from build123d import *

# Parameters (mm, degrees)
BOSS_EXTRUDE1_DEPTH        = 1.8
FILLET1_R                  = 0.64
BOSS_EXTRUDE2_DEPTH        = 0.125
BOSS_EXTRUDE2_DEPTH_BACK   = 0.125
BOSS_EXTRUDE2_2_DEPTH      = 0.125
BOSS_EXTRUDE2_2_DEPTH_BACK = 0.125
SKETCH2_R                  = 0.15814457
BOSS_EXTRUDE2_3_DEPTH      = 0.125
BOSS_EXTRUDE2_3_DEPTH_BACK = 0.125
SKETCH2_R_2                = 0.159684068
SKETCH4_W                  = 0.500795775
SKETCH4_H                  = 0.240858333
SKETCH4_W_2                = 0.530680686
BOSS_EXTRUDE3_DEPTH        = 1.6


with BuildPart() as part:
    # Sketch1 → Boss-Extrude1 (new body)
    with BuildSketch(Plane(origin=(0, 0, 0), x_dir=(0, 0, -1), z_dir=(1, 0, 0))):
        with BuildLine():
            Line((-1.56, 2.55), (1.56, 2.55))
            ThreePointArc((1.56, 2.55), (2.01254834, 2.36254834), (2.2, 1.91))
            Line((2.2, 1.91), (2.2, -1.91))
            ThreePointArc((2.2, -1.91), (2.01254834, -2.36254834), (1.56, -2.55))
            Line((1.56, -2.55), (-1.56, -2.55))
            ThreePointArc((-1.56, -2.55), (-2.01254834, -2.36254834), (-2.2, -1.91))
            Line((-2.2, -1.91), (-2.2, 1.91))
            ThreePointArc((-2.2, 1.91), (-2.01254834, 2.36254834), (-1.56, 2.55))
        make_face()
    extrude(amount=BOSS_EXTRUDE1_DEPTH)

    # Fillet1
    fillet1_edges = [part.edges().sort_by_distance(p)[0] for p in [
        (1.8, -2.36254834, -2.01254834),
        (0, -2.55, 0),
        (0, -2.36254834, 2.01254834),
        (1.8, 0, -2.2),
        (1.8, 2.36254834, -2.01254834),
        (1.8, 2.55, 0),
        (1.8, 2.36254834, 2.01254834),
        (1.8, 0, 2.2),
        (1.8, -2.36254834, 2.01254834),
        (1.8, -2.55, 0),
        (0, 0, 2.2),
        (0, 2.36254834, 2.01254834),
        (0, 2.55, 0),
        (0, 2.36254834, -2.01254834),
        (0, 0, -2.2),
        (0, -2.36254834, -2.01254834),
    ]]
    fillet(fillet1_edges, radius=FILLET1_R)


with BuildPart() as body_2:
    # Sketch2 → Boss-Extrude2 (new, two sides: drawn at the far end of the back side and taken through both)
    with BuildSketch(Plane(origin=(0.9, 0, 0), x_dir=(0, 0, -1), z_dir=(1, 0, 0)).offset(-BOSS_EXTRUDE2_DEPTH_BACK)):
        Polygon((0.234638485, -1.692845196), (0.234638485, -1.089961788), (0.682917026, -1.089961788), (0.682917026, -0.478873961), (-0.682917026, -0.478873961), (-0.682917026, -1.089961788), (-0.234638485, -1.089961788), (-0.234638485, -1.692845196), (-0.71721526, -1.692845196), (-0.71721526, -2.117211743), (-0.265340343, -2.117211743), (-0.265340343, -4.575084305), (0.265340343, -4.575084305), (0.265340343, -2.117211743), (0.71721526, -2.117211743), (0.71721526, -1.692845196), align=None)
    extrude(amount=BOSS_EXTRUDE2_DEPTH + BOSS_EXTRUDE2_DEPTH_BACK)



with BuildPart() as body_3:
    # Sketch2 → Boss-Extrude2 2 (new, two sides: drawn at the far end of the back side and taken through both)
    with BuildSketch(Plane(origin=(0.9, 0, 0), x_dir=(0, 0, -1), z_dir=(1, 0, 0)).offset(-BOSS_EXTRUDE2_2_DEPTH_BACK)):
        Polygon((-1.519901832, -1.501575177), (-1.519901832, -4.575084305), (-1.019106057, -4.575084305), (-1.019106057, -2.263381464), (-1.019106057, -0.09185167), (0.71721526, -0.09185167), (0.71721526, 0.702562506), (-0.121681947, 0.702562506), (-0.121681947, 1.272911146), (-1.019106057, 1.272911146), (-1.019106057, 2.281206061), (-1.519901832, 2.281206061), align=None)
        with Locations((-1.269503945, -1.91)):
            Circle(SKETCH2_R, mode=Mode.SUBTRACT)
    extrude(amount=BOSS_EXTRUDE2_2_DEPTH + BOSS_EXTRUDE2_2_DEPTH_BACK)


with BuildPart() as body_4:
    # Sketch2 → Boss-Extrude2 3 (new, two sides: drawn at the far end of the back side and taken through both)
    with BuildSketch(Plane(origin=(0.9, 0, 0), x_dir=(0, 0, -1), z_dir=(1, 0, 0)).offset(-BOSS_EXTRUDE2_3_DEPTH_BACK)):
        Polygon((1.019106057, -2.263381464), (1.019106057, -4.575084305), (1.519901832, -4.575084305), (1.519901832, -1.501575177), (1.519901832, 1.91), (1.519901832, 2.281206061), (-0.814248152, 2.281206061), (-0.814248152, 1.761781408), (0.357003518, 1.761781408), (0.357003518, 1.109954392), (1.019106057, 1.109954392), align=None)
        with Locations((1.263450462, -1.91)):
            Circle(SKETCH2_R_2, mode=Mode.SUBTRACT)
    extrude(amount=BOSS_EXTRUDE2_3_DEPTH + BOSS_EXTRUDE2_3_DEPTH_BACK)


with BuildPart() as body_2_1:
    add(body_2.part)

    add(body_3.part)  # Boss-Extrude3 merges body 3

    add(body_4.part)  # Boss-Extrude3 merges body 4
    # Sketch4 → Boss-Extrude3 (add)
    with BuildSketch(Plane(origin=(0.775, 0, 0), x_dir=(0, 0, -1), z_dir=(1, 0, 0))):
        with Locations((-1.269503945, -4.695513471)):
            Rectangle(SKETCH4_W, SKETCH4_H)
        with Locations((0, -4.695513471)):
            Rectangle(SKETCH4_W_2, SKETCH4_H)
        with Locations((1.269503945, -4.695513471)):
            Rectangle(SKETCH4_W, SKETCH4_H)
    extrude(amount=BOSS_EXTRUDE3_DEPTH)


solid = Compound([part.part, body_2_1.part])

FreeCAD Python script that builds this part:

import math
import FreeCAD as App
import Part
import Sketcher

V = App.Vector
Q = App.Units.Quantity


def edges_at(feature, points):
    """Names of the edges that pass closest to the given points."""
    edges = feature.Shape.Edges
    near = lambda p: min(range(len(edges)), key=lambda i: edges[i].distToShape(Part.Vertex(*p))[0])
    return sorted({f"Edge{near(p) + 1}" for p in points})


def add_polygon(sketch, points):
    """Adds a closed chain of lines whose ends are joined by coincident constraints."""
    first, n = sketch.GeometryCount, len(points)
    for a, b in zip(points, points[1:] + points[:1]):
        sketch.addGeometry(Part.LineSegment(App.Vector(*a, 0), App.Vector(*b, 0)), False)
    for i in range(n):
        sketch.addConstraint(Sketcher.Constraint("Coincident", first + i, 2, first + (i + 1) % n, 1))

doc = App.newDocument("Part")
body = doc.addObject("PartDesign::Body", "Body")

# Sketch on YZ plane
sketch1 = doc.addObject("Sketcher::SketchObject", "Sketch")
body.addObject(sketch1)
sketch1.AttachmentSupport = (doc.YZ_Plane, [""])
sketch1.MapMode = "FlatFace"
sketch1.addGeometry([
    Part.LineSegment(V(2.55, -1.56, 0), V(2.55, 1.56, 0)),  # 0
    Part.ArcOfCircle(Part.Circle(V(1.91, 1.56, 0), V(0, 0, 1), 0.64), math.radians(0), math.radians(90)),  # 1
    Part.LineSegment(V(1.91, 2.2, 0), V(-1.91, 2.2, 0)),  # 2
    Part.ArcOfCircle(Part.Circle(V(-1.91, 1.56, 0), V(0, 0, 1), 0.64), math.radians(90), math.radians(180)),  # 3
    Part.LineSegment(V(-2.55, 1.56, 0), V(-2.55, -1.56, 0)),  # 4
    Part.ArcOfCircle(Part.Circle(V(-1.91, -1.56, 0), V(0, 0, 1), 0.64), math.radians(180), math.radians(270)),  # 5
    Part.LineSegment(V(-1.91, -2.2, 0), V(1.91, -2.2, 0)),  # 6
    Part.ArcOfCircle(Part.Circle(V(1.91, -1.56, 0), V(0, 0, 1), 0.64), math.radians(-90), math.radians(0)),  # 7
], False)
sketch1.addConstraint([
    Sketcher.Constraint("Tangent", 0, 2, 1, 1),
    Sketcher.Constraint("Tangent", 1, 2, 2, 1),
    Sketcher.Constraint("Tangent", 2, 2, 3, 1),
    Sketcher.Constraint("Tangent", 3, 2, 4, 1),
    Sketcher.Constraint("Tangent", 4, 2, 5, 1),
    Sketcher.Constraint("Tangent", 5, 2, 6, 1),
    Sketcher.Constraint("Tangent", 6, 2, 7, 1),
    Sketcher.Constraint("Tangent", 7, 2, 0, 1),
    Sketcher.Constraint("Vertical", 0),
    Sketcher.Constraint("Horizontal", 2),
    Sketcher.Constraint("Vertical", 4),
    Sketcher.Constraint("Horizontal", 6),
    Sketcher.Constraint("Equal", 1, 3),
    Sketcher.Constraint("Equal", 3, 5),
    Sketcher.Constraint("Equal", 5, 7),
    Sketcher.Constraint("Symmetric", 1, 3, 5, 3, -1, 1),
    Sketcher.Constraint("Radius", 1, Q("0.64 mm")),
    Sketcher.Constraint("DistanceX", 2, 2, 2, 1, Q("3.82 mm")),
    Sketcher.Constraint("DistanceY", 0, 1, 0, 2, Q("3.12 mm")),
])
pad1 = doc.addObject("PartDesign::Pad", "Pad")
body.addObject(pad1)
pad1.Profile = sketch1
pad1.Length = 1.8
doc.recompute()

fillet = doc.addObject("PartDesign::Fillet", "Fillet")
body.addObject(fillet)
fillet.Base = (pad1, edges_at(pad1, [
    (1.8, -2.363, -2.013),
    (0, -2.55, 0),
    (0, -2.363, 2.013),
    (1.8, 0, -2.2),
    (1.8, 2.363, -2.013),
    (1.8, 2.55, 0),
    (1.8, 2.363, 2.013),
    (1.8, 0, 2.2),
    (1.8, -2.363, 2.013),
    (1.8, -2.55, 0),
    (0, 0, 2.2),
    (0, 2.363, 2.013),
    (0, 2.55, 0),
    (0, 2.363, -2.013),
    (0, 0, -2.2),
    (0, -2.363, -2.013),
]))
fillet.Radius = 0.64
body2 = doc.addObject("PartDesign::Body", "Body001")

# Sketch on YZ plane
sketch2 = doc.addObject("Sketcher::SketchObject", "Sketch001")
body2.addObject(sketch2)
sketch2.AttachmentSupport = (doc.getObject("YZ_Plane001"), [""])
sketch2.MapMode = "FlatFace"
sketch2.AttachmentOffset = App.Placement(V(0, 0, 0.9), App.Rotation())
add_polygon(sketch2, [(-1.692845, -0.234638), (-1.089962, -0.234638), (-1.089962, -0.682917), (-0.478874, -0.682917), (-0.478874, 0.682917), (-1.089962, 0.682917), (-1.089962, 0.234638), (-1.692845, 0.234638), (-1.692845, 0.717215), (-2.117212, 0.717215), (-2.117212, 0.26534), (-4.575084, 0.26534), (-4.575084, -0.26534), (-2.117212, -0.26534), (-2.117212, -0.717215), (-1.692845, -0.717215)])  # lines 0-15
sketch2.addConstraint([
    Sketcher.Constraint("Horizontal", 0),
    Sketcher.Constraint("Vertical", 1),
    Sketcher.Constraint("Horizontal", 2),
    Sketcher.Constraint("Vertical", 3),
    Sketcher.Constraint("Horizontal", 4),
    Sketcher.Constraint("Vertical", 5),
    Sketcher.Constraint("Horizontal", 6),
    Sketcher.Constraint("Vertical", 7),
    Sketcher.Constraint("Horizontal", 8),
    Sketcher.Constraint("Vertical", 9),
    Sketcher.Constraint("Horizontal", 10),
    Sketcher.Constraint("Vertical", 11),
    Sketcher.Constraint("Horizontal", 12),
    Sketcher.Constraint("Vertical", 13),
    Sketcher.Constraint("Horizontal", 14),
    Sketcher.Constraint("Vertical", 15),
    Sketcher.Constraint("Symmetric", 1, 2, 4, 2, -1),
    Sketcher.Constraint("Symmetric", 9, 2, 12, 2, -1),
    Sketcher.Constraint("Symmetric", 7, 2, 14, 2, -1),
    Sketcher.Constraint("Equal", 1, 5),
    Sketcher.Constraint("DistanceY", 1, 2, 1, 1, Q("0.448279 mm")),
    Sketcher.Constraint("DistanceY", 11, 2, 11, 1, Q("0.530681 mm")),
    Sketcher.Constraint("DistanceY", 4, 2, 7, 2, Q("0.034298 mm")),
    Sketcher.Constraint("DistanceY", 6, 2, 9, 2, Q("0.030702 mm")),
    Sketcher.Constraint("DistanceX", 0, 1, 0, 2, Q("0.602883 mm")),
    Sketcher.Constraint("DistanceX", 2, 1, 2, 2, Q("0.611088 mm")),
    Sketcher.Constraint("DistanceX", 8, 2, 8, 1, Q("0.424367 mm")),
    Sketcher.Constraint("DistanceX", 10, 2, 10, 1, Q("2.457873 mm")),
    Sketcher.Constraint("DistanceX", 0, 2, -1, 1, Q("1.089962 mm")),
])
pad2 = doc.addObject("PartDesign::Pad", "Pad001")
body2.addObject(pad2)
pad2.Profile = sketch2
pad2.Type = "TwoLengths"
pad2.Length = 0.125
pad2.Length2 = 0.125
body3 = doc.addObject("PartDesign::Body", "Body002")

# Sketch on YZ plane
sketch3 = doc.addObject("Sketcher::SketchObject", "Sketch002")
body3.addObject(sketch3)
sketch3.AttachmentSupport = (doc.getObject("YZ_Plane002"), [""])
sketch3.MapMode = "FlatFace"
sketch3.AttachmentOffset = App.Placement(V(0, 0, 0.9), App.Rotation())
add_polygon(sketch3, [(-4.575084, 1.519902), (-4.575084, 1.019106), (-0.091852, 1.019106), (-0.091852, -0.717215), (0.702563, -0.717215), (0.702563, 0.121682), (1.272911, 0.121682), (1.272911, 1.019106), (2.281206, 1.019106), (2.281206, 1.519902)])  # lines 0-9
sketch3.addGeometry(Part.Circle(V(-1.91, 1.269504, 0), V(0, 0, 1), 0.158145), False)  # 10
sketch3.addConstraint([
    Sketcher.Constraint("Vertical", 0),
    Sketcher.Constraint("Horizontal", 1),
    Sketcher.Constraint("Vertical", 2),
    Sketcher.Constraint("Horizontal", 3),
    Sketcher.Constraint("Vertical", 4),
    Sketcher.Constraint("Horizontal", 5),
    Sketcher.Constraint("Vertical", 6),
    Sketcher.Constraint("Horizontal", 7),
    Sketcher.Constraint("Vertical", 8),
    Sketcher.Constraint("Horizontal", 9),
    Sketcher.Constraint("Horizontal", 1, 2, 6, 2),
    Sketcher.Constraint("Diameter", 10, Q("0.316289 mm")),
    Sketcher.Constraint("DistanceX", 10, 3, -1, 1, Q("1.91 mm")),
    Sketcher.Constraint("DistanceX", 5, 1, 5, 2, Q("0.570349 mm")),
    Sketcher.Constraint("DistanceX", 9, 2, 9, 1, Q("6.85629 mm")),
    Sketcher.Constraint("DistanceY", 2, 2, 2, 1, Q("1.736321 mm")),
    Sketcher.Constraint("DistanceY", -1, 1, 8, 2, Q("1.519902 mm")),
    Sketcher.Constraint("DistanceX", 1, 1, 1, 2, Q("4.483233 mm")),
    Sketcher.Constraint("DistanceX", 3, 1, 3, 2, Q("0.794414 mm")),
    Sketcher.Constraint("DistanceY", 0, 2, 0, 1, Q("0.500796 mm")),
    Sketcher.Constraint("DistanceY", 4, 1, 4, 2, Q("0.838897 mm")),
    Sketcher.Constraint("DistanceX", 1, 2, -1, 1, Q("0.091852 mm")),
    Sketcher.Constraint("DistanceY", 2, 2, 10, 3, Q("1.986719 mm")),
])
pad3 = doc.addObject("PartDesign::Pad", "Pad002")
body3.addObject(pad3)
pad3.Profile = sketch3
pad3.Type = "TwoLengths"
pad3.Length = 0.125
pad3.Length2 = 0.125
body4 = doc.addObject("PartDesign::Body", "Body003")

# Sketch on YZ plane
sketch4 = doc.addObject("Sketcher::SketchObject", "Sketch003")
body4.addObject(sketch4)
sketch4.AttachmentSupport = (doc.getObject("YZ_Plane003"), [""])
sketch4.MapMode = "FlatFace"
sketch4.AttachmentOffset = App.Placement(V(0, 0, 0.9), App.Rotation())
add_polygon(sketch4, [(-4.575084, -1.019106), (-4.575084, -1.519902), (2.281206, -1.519902), (2.281206, 0.814248), (1.761781, 0.814248), (1.761781, -0.357004), (1.109954, -0.357004), (1.109954, -1.019106)])  # lines 0-7
sketch4.addGeometry(Part.Circle(V(-1.91, -1.26345, 0), V(0, 0, 1), 0.159684), False)  # 8
sketch4.addConstraint([
    Sketcher.Constraint("Vertical", 0),
    Sketcher.Constraint("Horizontal", 1),
    Sketcher.Constraint("Vertical", 2),
    Sketcher.Constraint("Horizontal", 3),
    Sketcher.Constraint("Vertical", 4),
    Sketcher.Constraint("Horizontal", 5),
    Sketcher.Constraint("Vertical", 6),
    Sketcher.Constraint("Horizontal", 7),
    Sketcher.Constraint("Diameter", 8, Q("0.319368 mm")),
    Sketcher.Constraint("DistanceX", 8, 3, -1, 1, Q("1.91 mm")),
    Sketcher.Constraint("DistanceX", 1, 1, 1, 2, Q("6.85629 mm")),
    Sketcher.Constraint("DistanceX", 7, 2, 7, 1, Q("5.685039 mm")),
    Sketcher.Constraint("DistanceY", 2, 1, 2, 2, Q("2.33415 mm")),
    Sketcher.Constraint("DistanceY", 4, 2, 4, 1, Q("1.171252 mm")),
    Sketcher.Constraint("DistanceY", 0, 2, -1, 1, Q("1.519902 mm")),
    Sketcher.Constraint("DistanceY", 8, 3, 2, 2, Q("2.077699 mm")),
    Sketcher.Constraint("DistanceX", 3, 2, 3, 1, Q("0.519425 mm")),
    Sketcher.Constraint("DistanceY", 0, 2, 0, 1, Q("0.500796 mm")),
    Sketcher.Constraint("DistanceX", -1, 1, 3, 2, Q("1.761781 mm")),
])
pad4 = doc.addObject("PartDesign::Pad", "Pad003")
body4.addObject(pad4)
pad4.Profile = sketch4
pad4.Type = "TwoLengths"
pad4.Length = 0.125
pad4.Length2 = 0.125
body2.AllowCompound = True
doc.recompute()

boolean = doc.addObject("PartDesign::Boolean", "Boolean")
body2.addObject(boolean)
boolean.Type = "Fuse"
boolean.addObjects([body3])
doc.recompute()

boolean2 = doc.addObject("PartDesign::Boolean", "Boolean001")
body2.addObject(boolean2)
boolean2.Type = "Fuse"
boolean2.addObjects([body4])

# Sketch on YZ plane
sketch5 = doc.addObject("Sketcher::SketchObject", "Sketch004")
body2.addObject(sketch5)
sketch5.AttachmentSupport = (doc.getObject("YZ_Plane001"), [""])
sketch5.MapMode = "FlatFace"
sketch5.AttachmentOffset = App.Placement(V(0, 0, 0.775), App.Rotation())
add_polygon(sketch5, [(-4.575084, 1.519902), (-4.815943, 1.519902), (-4.815943, 1.019106), (-4.575084, 1.019106)])  # lines 0-3
add_polygon(sketch5, [(-4.575084, 0.26534), (-4.815943, 0.26534), (-4.815943, -0.26534), (-4.575084, -0.26534)])  # lines 4-7
add_polygon(sketch5, [(-4.575084, -1.019106), (-4.815943, -1.019106), (-4.815943, -1.519902), (-4.575084, -1.519902)])  # lines 8-11
sketch5.addConstraint([
    Sketcher.Constraint("Horizontal", 0),
    Sketcher.Constraint("Vertical", 1),
    Sketcher.Constraint("Horizontal", 2),
    Sketcher.Constraint("Vertical", 3),
    Sketcher.Constraint("Horizontal", 4),
    Sketcher.Constraint("Vertical", 5),
    Sketcher.Constraint("Horizontal", 6),
    Sketcher.Constraint("Vertical", 7),
    Sketcher.Constraint("Horizontal", 8),
    Sketcher.Constraint("Vertical", 9),
    Sketcher.Constraint("Horizontal", 10),
    Sketcher.Constraint("Vertical", 11),
    Sketcher.Constraint("Symmetric", 1, 2, 8, 2, -1),
    Sketcher.Constraint("Symmetric", 3, 2, 10, 2, -1),
    Sketcher.Constraint("Vertical", 1, 2, 4, 2),
    Sketcher.Constraint("Vertical", 3, 2, 6, 2),
    Sketcher.Constraint("DistanceX", 0, 2, 0, 1, Q("0.240858 mm")),
    Sketcher.Constraint("DistanceY", 5, 2, 5, 1, Q("0.530681 mm")),
    Sketcher.Constraint("DistanceY", -1, 1, 0, 2, Q("1.519902 mm")),
    Sketcher.Constraint("DistanceY", 1, 2, 1, 1, Q("0.500796 mm")),
    Sketcher.Constraint("DistanceY", -1, 1, 4, 2, Q("0.26534 mm")),
    Sketcher.Constraint("DistanceX", 0, 2, -1, 1, Q("4.815943 mm")),
])
pad5 = doc.addObject("PartDesign::Pad", "Pad004")
body2.addObject(pad5)
pad5.Profile = sketch5
pad5.Length = 1.6

doc.recompute()
